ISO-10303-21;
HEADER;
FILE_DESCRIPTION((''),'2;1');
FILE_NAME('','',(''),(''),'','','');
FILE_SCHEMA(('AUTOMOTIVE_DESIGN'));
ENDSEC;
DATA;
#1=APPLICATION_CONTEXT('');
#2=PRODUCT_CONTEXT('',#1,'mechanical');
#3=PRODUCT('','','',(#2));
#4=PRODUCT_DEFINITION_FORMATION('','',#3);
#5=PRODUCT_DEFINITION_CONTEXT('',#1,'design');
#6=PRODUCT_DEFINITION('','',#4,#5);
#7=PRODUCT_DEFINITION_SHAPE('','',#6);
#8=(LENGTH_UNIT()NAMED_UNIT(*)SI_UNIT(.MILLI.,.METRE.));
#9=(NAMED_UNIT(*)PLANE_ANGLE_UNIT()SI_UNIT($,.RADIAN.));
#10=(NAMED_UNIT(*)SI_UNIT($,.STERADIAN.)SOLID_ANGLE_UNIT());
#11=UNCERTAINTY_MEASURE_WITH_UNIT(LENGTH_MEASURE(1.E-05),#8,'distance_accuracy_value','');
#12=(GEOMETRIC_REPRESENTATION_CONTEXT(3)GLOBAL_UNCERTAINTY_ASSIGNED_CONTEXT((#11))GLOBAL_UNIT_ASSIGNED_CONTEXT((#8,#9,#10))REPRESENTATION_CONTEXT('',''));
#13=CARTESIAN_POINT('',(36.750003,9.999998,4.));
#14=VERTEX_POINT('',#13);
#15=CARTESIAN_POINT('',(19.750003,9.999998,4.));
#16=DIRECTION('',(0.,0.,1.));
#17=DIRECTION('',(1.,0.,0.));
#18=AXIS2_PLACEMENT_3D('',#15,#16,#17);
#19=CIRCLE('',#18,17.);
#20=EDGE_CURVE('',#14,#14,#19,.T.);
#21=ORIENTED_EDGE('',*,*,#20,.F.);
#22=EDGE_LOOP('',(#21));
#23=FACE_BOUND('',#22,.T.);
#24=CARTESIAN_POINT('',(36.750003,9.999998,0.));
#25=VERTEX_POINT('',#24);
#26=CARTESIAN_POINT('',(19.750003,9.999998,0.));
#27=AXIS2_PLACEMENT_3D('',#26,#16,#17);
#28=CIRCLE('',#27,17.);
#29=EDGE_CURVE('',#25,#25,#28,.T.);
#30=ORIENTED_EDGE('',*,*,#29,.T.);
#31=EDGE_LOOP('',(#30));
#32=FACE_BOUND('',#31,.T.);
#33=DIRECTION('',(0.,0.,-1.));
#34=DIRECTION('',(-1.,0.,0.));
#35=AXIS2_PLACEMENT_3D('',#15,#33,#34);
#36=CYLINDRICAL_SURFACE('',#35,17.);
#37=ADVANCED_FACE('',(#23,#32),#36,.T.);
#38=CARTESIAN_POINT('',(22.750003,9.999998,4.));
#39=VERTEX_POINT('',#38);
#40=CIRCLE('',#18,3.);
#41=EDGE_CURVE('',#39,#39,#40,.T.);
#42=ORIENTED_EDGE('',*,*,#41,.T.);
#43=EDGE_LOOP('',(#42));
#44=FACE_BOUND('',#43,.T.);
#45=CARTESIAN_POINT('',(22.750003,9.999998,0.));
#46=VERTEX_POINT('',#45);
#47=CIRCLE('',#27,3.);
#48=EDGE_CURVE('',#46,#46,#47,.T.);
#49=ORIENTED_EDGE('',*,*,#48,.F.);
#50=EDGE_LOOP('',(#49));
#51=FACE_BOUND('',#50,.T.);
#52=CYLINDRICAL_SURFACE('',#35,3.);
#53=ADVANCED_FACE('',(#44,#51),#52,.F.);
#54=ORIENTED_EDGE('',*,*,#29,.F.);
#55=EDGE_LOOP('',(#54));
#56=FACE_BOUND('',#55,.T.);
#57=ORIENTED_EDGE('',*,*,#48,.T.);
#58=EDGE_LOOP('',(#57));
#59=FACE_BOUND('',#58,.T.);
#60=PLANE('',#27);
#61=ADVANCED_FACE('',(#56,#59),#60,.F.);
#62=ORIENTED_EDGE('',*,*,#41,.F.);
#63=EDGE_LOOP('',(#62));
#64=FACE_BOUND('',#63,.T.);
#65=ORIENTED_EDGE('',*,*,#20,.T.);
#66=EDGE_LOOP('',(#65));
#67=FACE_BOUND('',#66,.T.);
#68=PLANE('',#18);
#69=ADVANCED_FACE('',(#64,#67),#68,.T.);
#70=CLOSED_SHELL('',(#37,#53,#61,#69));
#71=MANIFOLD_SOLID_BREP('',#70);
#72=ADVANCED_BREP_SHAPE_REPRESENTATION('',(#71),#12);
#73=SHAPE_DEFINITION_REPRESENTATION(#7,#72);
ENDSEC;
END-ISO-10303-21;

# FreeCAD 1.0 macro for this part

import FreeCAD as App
import Part
import Sketcher

V = App.Vector
Q = App.Units.Quantity

doc = App.newDocument("Part")
params = doc.addObject("Spreadsheet::Sheet", "Params")
for row, (alias, value) in enumerate([
    ("sketch1_diameter", "34 mm"),
    ("sketch1_diameter2", "6 mm"),
    ("pad1_length", "4 mm"),
], start=1):
    params.set(f"A{row}", alias)
    params.set(f"B{row}", "=" + value)
    params.setAlias(f"B{row}", alias)

body = doc.addObject("PartDesign::Body", "Body")

# Sketch on XY plane
sketch1 = body.newObject("Sketcher::SketchObject", "Sketch")
sketch1.AttachmentSupport = (doc.getObject("XY_Plane"), [""])
sketch1.MapMode = "FlatFace"
sketch1.addGeometry(Part.Circle(V(19.750003, 9.999998, 0), V(0, 0, 1), 17), False)
sketch1.addGeometry(Part.Circle(V(19.750003, 9.999998, 0), V(0, 0, 1), 3), False)
sketch1.addConstraint(Sketcher.Constraint("Coincident", 1, 3, 0, 3))
sketch1.addConstraint(Sketcher.Constraint("Diameter", 0, Q("34 mm")))
sketch1.addConstraint(Sketcher.Constraint("Diameter", 1, Q("6 mm")))
sketch1.addConstraint(Sketcher.Constraint("DistanceY", -1, 1, 0, 3, Q("9.999998 mm")))
sketch1.addConstraint(Sketcher.Constraint("DistanceX", -1, 1, 0, 3, Q("19.750003 mm")))
sketch1.setExpression("Constraints[1]", "Params.sketch1_diameter")
sketch1.setExpression("Constraints[2]", "Params.sketch1_diameter2")
pad1 = body.newObject("PartDesign::Pad", "Pad")
pad1.Profile = sketch1
pad1.setExpression("Length", "Params.pad1_length")

doc.recompute()
